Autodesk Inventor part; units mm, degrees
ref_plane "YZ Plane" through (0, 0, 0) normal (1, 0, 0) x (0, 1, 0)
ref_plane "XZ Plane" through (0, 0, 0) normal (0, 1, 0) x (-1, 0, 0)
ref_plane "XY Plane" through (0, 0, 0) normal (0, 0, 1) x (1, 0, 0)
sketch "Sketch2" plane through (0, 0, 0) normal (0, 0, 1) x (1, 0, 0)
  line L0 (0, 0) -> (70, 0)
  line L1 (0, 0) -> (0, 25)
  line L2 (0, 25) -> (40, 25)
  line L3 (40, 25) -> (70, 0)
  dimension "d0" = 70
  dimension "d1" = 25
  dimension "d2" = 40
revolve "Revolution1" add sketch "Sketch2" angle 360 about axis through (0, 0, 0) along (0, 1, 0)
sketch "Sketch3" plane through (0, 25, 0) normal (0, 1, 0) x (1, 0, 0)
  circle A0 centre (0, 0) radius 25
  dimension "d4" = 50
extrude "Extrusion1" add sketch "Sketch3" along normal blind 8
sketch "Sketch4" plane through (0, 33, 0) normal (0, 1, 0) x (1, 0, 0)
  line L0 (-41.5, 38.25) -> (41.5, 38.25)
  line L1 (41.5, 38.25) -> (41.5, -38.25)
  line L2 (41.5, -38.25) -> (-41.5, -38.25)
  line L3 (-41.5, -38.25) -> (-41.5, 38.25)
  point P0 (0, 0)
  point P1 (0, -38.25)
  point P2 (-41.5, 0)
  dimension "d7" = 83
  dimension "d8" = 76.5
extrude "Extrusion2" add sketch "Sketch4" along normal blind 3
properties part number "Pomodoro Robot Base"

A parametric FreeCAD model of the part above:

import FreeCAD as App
import Part
import Sketcher
from FreeCAD import Vector


def add_polygon(sketch, points):
    """Adds a closed chain of lines whose ends are joined by coincident constraints."""
    first, n = sketch.GeometryCount, len(points)
    for a, b in zip(points, points[1:] + points[:1]):
        sketch.addGeometry(Part.LineSegment(App.Vector(*a, 0), App.Vector(*b, 0)), False)
    for i in range(n):
        sketch.addConstraint(Sketcher.Constraint("Coincident", first + i, 2, first + (i + 1) % n, 1))

doc = App.newDocument("Part")
body = doc.addObject("PartDesign::Body", "Body")

sketch1 = body.newObject("Sketcher::SketchObject", "Sketch")
sketch1.AttachmentSupport = (doc.getObject("XY_Plane"), [""])
sketch1.MapMode = "FlatFace"
add_polygon(sketch1, [(0, 25), (0, 0), (70, 0), (40, 25)])
sketch1.addConstraint(Sketcher.Constraint("Vertical", 0))
sketch1.addConstraint(Sketcher.Constraint("Horizontal", 1))
sketch1.addConstraint(Sketcher.Constraint("Horizontal", 3))
sketch1.addConstraint(Sketcher.Constraint("Coincident", 0, 2, -1, 1))
sketch1.addConstraint(Sketcher.Constraint("DistanceX", 1, 1, 1, 2, 70.0))
sketch1.addConstraint(Sketcher.Constraint("DistanceX", 3, 2, 3, 1, 40.0))
sketch1.addConstraint(Sketcher.Constraint("DistanceY", 0, 2, 0, 1, 25.0))
revolution = body.newObject("PartDesign::Revolution", "Revolution")
revolution.Profile = sketch1
revolution.ReferenceAxis = (sketch1, ["V_Axis"])
revolution.Angle = 360

sketch2 = body.newObject("Sketcher::SketchObject", "Sketch001")
sketch2.AttachmentSupport = (doc.getObject("XZ_Plane"), [""])
sketch2.MapMode = "FlatFace"
sketch2.AttachmentOffset = App.Placement(Vector(0, 0, -25), App.Rotation())
sketch2.addGeometry(Part.Circle(Vector(0, 0, 0), Vector(0, 0, 1), 25), False)
sketch2.addConstraint(Sketcher.Constraint("Coincident", 0, 3, -1, 1))
sketch2.addConstraint(Sketcher.Constraint("Diameter", 0, 50.0))
pad1 = body.newObject("PartDesign::Pad", "Pad")
pad1.Profile = sketch2
pad1.Length = 8
pad1.Reversed = True

sketch3 = body.newObject("Sketcher::SketchObject", "Sketch002")
sketch3.AttachmentSupport = (doc.getObject("XZ_Plane"), [""])
sketch3.MapMode = "FlatFace"
sketch3.AttachmentOffset = App.Placement(Vector(0, 0, -33), App.Rotation())
add_polygon(sketch3, [(42, -38), (-42, -38), (-42, 38), (42, 38)])
sketch3.addConstraint(Sketcher.Constraint("Horizontal", 0))
sketch3.addConstraint(Sketcher.Constraint("Vertical", 1))
sketch3.addConstraint(Sketcher.Constraint("Horizontal", 2))
sketch3.addConstraint(Sketcher.Constraint("Vertical", 3))
sketch3.addConstraint(Sketcher.Constraint("Symmetric", 0, 2, 2, 2, -1, 1))
sketch3.addConstraint(Sketcher.Constraint("DistanceX", 0, 2, 0, 1, 83.0))
sketch3.addConstraint(Sketcher.Constraint("DistanceY", 1, 1, 1, 2, 76.5))
pad2 = body.newObject("PartDesign::Pad", "Pad001")
pad2.Profile = sketch3
pad2.Length = 3
pad2.Reversed = True

doc.recompute()
